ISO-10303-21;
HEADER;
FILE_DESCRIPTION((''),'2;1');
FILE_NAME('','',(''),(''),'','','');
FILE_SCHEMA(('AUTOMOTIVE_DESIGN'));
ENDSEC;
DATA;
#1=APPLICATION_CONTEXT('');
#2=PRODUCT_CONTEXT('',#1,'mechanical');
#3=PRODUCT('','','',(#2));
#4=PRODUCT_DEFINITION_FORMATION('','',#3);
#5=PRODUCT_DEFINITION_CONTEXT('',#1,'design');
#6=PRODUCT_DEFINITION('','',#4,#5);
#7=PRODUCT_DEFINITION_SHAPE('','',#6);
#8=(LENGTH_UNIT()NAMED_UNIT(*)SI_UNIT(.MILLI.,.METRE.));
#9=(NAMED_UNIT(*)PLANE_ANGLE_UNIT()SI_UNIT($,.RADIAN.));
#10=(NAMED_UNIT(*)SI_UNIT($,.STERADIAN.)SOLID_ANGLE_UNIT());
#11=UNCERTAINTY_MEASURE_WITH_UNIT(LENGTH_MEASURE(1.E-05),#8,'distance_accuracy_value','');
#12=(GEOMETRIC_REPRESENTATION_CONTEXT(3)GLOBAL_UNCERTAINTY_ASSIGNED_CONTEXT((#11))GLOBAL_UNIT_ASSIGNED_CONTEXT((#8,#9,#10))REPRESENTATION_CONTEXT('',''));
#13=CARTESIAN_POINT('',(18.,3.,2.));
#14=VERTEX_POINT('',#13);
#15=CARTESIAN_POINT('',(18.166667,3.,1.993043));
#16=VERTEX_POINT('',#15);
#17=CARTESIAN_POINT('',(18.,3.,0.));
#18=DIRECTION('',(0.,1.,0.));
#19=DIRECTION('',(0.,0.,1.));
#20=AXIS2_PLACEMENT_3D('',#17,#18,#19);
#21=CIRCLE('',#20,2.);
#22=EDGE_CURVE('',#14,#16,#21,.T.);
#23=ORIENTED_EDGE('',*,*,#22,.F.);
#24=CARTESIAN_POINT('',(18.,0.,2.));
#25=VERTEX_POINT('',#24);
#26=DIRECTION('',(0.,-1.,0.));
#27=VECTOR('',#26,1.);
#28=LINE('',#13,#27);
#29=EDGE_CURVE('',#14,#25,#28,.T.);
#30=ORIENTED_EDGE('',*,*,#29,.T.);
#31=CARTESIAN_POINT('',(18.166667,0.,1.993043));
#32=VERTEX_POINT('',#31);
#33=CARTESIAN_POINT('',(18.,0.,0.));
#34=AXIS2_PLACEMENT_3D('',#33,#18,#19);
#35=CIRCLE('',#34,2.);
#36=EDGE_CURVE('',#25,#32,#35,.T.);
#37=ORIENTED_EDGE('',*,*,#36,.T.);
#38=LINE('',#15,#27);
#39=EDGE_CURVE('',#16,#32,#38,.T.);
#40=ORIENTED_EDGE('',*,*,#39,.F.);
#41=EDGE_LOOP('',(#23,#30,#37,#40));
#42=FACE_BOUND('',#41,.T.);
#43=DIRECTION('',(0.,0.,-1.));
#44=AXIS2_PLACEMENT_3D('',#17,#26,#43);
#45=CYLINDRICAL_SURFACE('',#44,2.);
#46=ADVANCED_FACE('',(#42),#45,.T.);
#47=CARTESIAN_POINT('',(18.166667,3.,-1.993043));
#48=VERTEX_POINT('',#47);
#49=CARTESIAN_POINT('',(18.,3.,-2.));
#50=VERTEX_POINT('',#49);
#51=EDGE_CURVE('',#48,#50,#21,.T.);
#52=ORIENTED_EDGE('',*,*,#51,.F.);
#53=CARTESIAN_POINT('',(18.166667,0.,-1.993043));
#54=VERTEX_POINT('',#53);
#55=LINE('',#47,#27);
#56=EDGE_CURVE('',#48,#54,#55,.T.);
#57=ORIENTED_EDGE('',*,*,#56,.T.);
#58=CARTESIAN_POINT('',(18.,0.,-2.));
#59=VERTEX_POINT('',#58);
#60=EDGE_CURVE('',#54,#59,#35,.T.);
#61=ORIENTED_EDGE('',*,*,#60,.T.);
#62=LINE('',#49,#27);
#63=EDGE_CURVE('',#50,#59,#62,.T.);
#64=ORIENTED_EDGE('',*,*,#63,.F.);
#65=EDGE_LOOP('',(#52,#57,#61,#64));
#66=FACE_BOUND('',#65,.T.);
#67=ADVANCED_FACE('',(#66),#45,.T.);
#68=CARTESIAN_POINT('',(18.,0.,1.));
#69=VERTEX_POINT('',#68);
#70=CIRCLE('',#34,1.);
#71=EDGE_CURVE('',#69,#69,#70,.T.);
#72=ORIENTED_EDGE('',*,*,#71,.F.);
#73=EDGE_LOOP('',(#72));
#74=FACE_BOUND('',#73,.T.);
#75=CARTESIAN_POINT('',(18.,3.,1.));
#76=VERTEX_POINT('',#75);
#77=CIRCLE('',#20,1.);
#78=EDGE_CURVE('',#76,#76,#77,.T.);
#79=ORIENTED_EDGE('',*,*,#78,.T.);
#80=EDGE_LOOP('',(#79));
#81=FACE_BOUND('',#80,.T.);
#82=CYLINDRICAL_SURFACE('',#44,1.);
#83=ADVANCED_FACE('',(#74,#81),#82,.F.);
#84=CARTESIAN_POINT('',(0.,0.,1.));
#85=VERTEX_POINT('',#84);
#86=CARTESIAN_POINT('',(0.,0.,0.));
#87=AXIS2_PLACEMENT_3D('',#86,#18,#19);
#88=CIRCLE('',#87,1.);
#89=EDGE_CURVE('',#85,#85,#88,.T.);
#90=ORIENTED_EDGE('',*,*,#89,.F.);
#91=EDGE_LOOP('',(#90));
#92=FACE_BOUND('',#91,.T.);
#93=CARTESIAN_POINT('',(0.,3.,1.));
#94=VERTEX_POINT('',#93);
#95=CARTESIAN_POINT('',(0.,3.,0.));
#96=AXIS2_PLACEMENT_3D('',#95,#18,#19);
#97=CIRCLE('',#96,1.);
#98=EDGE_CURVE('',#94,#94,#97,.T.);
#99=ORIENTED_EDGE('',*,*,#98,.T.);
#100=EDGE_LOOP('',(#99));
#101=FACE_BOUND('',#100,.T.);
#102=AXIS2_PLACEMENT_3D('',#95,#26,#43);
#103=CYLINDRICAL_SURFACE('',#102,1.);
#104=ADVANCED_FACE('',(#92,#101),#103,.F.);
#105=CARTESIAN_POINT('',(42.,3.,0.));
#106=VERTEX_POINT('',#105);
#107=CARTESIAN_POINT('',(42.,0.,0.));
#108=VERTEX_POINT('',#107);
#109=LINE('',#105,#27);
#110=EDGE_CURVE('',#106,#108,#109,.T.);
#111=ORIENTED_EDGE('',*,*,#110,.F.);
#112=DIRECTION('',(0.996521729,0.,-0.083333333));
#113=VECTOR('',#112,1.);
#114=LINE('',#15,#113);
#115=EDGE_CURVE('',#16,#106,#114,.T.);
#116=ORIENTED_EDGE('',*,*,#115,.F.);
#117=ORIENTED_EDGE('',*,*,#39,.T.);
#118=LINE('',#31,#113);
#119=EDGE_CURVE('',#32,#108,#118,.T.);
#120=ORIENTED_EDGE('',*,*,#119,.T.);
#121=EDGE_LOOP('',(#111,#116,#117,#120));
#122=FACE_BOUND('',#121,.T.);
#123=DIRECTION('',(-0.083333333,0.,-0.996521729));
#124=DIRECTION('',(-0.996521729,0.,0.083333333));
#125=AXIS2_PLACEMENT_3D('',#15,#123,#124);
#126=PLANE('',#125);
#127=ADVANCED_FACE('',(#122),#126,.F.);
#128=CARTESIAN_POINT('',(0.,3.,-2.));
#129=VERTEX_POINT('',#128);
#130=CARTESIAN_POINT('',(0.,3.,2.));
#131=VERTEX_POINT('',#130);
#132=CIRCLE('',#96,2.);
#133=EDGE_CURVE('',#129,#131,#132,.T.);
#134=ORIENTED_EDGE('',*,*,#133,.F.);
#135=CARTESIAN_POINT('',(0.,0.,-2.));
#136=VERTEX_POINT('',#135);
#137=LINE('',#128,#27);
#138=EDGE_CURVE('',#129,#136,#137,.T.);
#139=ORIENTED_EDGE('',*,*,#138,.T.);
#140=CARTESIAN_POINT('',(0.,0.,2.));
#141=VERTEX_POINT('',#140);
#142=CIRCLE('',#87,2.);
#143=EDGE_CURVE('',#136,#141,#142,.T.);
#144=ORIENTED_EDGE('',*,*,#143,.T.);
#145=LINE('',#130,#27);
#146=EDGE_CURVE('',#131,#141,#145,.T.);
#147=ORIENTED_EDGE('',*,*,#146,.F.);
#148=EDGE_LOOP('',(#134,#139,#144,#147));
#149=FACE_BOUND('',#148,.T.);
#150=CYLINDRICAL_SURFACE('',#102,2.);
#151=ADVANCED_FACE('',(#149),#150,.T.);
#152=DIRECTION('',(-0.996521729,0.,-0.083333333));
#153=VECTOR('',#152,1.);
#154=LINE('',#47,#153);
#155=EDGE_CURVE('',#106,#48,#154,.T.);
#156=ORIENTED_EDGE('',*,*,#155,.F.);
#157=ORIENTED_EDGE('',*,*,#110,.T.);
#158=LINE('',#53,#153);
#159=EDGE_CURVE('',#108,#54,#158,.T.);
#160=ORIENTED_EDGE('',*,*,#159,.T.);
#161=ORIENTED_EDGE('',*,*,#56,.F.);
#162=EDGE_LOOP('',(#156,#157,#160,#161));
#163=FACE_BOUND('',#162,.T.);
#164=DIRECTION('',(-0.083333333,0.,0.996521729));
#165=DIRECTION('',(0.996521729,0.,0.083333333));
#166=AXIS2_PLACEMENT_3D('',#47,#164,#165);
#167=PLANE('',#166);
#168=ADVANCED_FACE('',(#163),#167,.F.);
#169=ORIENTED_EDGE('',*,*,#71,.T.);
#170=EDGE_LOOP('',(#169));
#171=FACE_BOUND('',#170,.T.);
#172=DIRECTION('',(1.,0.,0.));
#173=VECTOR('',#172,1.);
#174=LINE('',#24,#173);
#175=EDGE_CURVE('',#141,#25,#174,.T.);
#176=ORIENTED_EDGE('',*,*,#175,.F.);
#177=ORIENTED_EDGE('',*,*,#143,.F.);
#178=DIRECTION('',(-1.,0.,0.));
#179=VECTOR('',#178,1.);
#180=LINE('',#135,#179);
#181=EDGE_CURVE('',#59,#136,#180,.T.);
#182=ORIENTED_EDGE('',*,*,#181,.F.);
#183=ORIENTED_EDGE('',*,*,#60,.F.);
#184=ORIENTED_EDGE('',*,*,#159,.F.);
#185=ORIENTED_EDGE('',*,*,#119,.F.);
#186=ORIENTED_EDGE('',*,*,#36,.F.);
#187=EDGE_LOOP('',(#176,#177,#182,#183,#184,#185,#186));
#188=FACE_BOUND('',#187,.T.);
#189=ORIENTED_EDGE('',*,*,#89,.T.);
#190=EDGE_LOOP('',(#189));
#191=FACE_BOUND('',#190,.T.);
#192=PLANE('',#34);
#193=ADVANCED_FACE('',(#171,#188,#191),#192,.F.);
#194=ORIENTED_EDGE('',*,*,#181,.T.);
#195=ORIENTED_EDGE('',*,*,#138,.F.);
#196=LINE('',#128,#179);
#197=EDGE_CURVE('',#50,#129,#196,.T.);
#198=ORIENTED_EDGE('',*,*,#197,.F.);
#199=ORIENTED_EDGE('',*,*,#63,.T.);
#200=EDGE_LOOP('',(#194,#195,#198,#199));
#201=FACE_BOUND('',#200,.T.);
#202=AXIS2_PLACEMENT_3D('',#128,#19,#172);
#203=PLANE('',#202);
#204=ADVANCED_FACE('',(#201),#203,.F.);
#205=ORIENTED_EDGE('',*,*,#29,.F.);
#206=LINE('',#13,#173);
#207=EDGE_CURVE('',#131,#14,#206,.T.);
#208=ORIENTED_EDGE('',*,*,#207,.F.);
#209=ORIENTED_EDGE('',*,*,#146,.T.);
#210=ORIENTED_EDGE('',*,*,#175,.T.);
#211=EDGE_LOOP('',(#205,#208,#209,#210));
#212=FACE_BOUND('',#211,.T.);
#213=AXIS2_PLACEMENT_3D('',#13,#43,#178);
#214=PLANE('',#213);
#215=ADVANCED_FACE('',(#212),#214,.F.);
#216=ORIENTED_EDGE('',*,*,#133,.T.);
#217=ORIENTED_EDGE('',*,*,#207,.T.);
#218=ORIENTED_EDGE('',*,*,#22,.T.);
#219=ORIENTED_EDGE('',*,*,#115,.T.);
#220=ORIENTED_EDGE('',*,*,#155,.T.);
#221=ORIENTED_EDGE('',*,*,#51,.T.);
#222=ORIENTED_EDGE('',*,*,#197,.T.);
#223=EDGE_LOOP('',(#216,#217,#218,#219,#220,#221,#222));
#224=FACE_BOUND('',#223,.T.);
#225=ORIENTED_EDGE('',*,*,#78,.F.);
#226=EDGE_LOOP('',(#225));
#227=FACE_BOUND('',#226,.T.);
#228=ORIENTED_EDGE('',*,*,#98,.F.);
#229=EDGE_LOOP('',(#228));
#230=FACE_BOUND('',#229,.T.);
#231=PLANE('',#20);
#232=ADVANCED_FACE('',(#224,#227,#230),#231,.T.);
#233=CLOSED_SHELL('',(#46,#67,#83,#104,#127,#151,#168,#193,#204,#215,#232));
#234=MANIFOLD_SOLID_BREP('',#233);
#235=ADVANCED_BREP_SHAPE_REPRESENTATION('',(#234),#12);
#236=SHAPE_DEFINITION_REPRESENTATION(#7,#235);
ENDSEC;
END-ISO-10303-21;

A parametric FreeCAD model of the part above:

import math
import FreeCAD as App
import Part
import Sketcher
Q = App.Units.Quantity

doc = App.newDocument("Part")
body = doc.addObject("PartDesign::Body", "Body")

sketch1 = body.newObject("Sketcher::SketchObject", "Sketch")
sketch1.AttachmentSupport = (doc.getObject("XZ_Plane"), [""])
sketch1.MapMode = "FlatFace"
sketch1.addGeometry([
    Part.LineSegment(App.Vector(18, -2, 0), App.Vector(0, -2, 0)),
    Part.ArcOfCircle(Part.Circle(App.Vector(0, 0, 0), App.Vector(0, 0, 1), 2), math.radians(90), math.radians(270)),
    Part.LineSegment(App.Vector(0, 2, 0), App.Vector(18, 2, 0)),
    Part.ArcOfCircle(Part.Circle(App.Vector(18, 0, 0), App.Vector(0, 0, 1), 2), math.radians(85.22), math.radians(90)),
    Part.LineSegment(App.Vector(18.17, 1.99, 0), App.Vector(42, 0, 0)),
    Part.LineSegment(App.Vector(42, 0, 0), App.Vector(18.17, -1.99, 0)),
    Part.ArcOfCircle(Part.Circle(App.Vector(18, 0, 0), App.Vector(0, 0, 1), 2), math.radians(-90), math.radians(-85.22)),
    Part.Circle(App.Vector(18, 0, 0), App.Vector(0, 0, 1), 1),
    Part.Circle(App.Vector(0, 0, 0), App.Vector(0, 0, 1), 1),
], False)
sketch1.addConstraint([
    Sketcher.Constraint("Tangent", 0, 2, 1, 2),
    Sketcher.Constraint("Tangent", 1, 1, 2, 1),
    Sketcher.Constraint("Tangent", 2, 2, 3, 2),
    Sketcher.Constraint("Tangent", 3, 1, 4, 1),
    Sketcher.Constraint("Coincident", 4, 2, 5, 1),
    Sketcher.Constraint("Tangent", 5, 2, 6, 2),
    Sketcher.Constraint("Tangent", 6, 1, 0, 1),
    Sketcher.Constraint("Horizontal", 0),
    Sketcher.Constraint("Horizontal", 2),
    Sketcher.Constraint("Coincident", 1, 3, -1, 1),
    Sketcher.Constraint("Coincident", 8, 3, -1, 1),
    Sketcher.Constraint("Coincident", 6, 3, 3, 3),
    Sketcher.Constraint("Coincident", 7, 3, 3, 3),
    Sketcher.Constraint("Equal", 1, 3),
    Sketcher.Constraint("Equal", 7, 8),
    Sketcher.Constraint("PointOnObject", 4, 2, -1),
    Sketcher.Constraint("Diameter", 7, Q("2 mm")),
    Sketcher.Constraint("Radius", 1, Q("2 mm")),
    Sketcher.Constraint("DistanceX", 0, 2, 0, 1, Q("18 mm")),
    Sketcher.Constraint("DistanceX", -1, 1, 4, 2, Q("42 mm")),
])
pad1 = body.newObject("PartDesign::Pad", "Pad")
pad1.Profile = sketch1
pad1.Length = 3
pad1.Reversed = True

doc.recompute()
